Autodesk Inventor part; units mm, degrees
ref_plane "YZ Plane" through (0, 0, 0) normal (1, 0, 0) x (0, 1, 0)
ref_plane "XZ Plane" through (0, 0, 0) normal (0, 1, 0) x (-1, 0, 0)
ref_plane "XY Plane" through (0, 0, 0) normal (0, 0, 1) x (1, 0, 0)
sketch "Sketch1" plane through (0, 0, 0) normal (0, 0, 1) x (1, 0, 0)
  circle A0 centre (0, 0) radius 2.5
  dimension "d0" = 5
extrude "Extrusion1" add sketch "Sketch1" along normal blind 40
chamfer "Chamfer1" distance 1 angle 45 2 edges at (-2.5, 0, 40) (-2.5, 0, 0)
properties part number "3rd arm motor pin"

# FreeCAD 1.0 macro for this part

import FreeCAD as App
import Part
import Sketcher
Q = App.Units.Quantity


def edges_at(feature, points):
    """Names of the edges that pass closest to the given points."""
    edges = feature.Shape.Edges
    near = lambda p: min(range(len(edges)), key=lambda i: edges[i].distToShape(Part.Vertex(*p))[0])
    return sorted({f"Edge{near(p) + 1}" for p in points})

doc = App.newDocument("Part")
body = doc.addObject("PartDesign::Body", "Body")

sketch1 = doc.addObject("Sketcher::SketchObject", "Sketch")
body.addObject(sketch1)
sketch1.AttachmentSupport = (doc.XY_Plane, [""])
sketch1.MapMode = "FlatFace"
sketch1.addGeometry(Part.Circle(App.Vector(0, 0, 0), App.Vector(0, 0, 1), 2.5), False)
sketch1.addConstraint(Sketcher.Constraint("Coincident", 0, 3, -1, 1))
sketch1.addConstraint(Sketcher.Constraint("Diameter", 0, Q("5 mm")))
pad1 = doc.addObject("PartDesign::Pad", "Pad")
body.addObject(pad1)
pad1.Profile = sketch1
pad1.Length = 40
doc.recompute()

chamfer = doc.addObject("PartDesign::Chamfer", "Chamfer")
body.addObject(chamfer)
chamfer.Base = (pad1, edges_at(pad1, [(-2.5, 0, 40), (-2.5, 0, 0)]))
chamfer.Size = 1

doc.recompute()
